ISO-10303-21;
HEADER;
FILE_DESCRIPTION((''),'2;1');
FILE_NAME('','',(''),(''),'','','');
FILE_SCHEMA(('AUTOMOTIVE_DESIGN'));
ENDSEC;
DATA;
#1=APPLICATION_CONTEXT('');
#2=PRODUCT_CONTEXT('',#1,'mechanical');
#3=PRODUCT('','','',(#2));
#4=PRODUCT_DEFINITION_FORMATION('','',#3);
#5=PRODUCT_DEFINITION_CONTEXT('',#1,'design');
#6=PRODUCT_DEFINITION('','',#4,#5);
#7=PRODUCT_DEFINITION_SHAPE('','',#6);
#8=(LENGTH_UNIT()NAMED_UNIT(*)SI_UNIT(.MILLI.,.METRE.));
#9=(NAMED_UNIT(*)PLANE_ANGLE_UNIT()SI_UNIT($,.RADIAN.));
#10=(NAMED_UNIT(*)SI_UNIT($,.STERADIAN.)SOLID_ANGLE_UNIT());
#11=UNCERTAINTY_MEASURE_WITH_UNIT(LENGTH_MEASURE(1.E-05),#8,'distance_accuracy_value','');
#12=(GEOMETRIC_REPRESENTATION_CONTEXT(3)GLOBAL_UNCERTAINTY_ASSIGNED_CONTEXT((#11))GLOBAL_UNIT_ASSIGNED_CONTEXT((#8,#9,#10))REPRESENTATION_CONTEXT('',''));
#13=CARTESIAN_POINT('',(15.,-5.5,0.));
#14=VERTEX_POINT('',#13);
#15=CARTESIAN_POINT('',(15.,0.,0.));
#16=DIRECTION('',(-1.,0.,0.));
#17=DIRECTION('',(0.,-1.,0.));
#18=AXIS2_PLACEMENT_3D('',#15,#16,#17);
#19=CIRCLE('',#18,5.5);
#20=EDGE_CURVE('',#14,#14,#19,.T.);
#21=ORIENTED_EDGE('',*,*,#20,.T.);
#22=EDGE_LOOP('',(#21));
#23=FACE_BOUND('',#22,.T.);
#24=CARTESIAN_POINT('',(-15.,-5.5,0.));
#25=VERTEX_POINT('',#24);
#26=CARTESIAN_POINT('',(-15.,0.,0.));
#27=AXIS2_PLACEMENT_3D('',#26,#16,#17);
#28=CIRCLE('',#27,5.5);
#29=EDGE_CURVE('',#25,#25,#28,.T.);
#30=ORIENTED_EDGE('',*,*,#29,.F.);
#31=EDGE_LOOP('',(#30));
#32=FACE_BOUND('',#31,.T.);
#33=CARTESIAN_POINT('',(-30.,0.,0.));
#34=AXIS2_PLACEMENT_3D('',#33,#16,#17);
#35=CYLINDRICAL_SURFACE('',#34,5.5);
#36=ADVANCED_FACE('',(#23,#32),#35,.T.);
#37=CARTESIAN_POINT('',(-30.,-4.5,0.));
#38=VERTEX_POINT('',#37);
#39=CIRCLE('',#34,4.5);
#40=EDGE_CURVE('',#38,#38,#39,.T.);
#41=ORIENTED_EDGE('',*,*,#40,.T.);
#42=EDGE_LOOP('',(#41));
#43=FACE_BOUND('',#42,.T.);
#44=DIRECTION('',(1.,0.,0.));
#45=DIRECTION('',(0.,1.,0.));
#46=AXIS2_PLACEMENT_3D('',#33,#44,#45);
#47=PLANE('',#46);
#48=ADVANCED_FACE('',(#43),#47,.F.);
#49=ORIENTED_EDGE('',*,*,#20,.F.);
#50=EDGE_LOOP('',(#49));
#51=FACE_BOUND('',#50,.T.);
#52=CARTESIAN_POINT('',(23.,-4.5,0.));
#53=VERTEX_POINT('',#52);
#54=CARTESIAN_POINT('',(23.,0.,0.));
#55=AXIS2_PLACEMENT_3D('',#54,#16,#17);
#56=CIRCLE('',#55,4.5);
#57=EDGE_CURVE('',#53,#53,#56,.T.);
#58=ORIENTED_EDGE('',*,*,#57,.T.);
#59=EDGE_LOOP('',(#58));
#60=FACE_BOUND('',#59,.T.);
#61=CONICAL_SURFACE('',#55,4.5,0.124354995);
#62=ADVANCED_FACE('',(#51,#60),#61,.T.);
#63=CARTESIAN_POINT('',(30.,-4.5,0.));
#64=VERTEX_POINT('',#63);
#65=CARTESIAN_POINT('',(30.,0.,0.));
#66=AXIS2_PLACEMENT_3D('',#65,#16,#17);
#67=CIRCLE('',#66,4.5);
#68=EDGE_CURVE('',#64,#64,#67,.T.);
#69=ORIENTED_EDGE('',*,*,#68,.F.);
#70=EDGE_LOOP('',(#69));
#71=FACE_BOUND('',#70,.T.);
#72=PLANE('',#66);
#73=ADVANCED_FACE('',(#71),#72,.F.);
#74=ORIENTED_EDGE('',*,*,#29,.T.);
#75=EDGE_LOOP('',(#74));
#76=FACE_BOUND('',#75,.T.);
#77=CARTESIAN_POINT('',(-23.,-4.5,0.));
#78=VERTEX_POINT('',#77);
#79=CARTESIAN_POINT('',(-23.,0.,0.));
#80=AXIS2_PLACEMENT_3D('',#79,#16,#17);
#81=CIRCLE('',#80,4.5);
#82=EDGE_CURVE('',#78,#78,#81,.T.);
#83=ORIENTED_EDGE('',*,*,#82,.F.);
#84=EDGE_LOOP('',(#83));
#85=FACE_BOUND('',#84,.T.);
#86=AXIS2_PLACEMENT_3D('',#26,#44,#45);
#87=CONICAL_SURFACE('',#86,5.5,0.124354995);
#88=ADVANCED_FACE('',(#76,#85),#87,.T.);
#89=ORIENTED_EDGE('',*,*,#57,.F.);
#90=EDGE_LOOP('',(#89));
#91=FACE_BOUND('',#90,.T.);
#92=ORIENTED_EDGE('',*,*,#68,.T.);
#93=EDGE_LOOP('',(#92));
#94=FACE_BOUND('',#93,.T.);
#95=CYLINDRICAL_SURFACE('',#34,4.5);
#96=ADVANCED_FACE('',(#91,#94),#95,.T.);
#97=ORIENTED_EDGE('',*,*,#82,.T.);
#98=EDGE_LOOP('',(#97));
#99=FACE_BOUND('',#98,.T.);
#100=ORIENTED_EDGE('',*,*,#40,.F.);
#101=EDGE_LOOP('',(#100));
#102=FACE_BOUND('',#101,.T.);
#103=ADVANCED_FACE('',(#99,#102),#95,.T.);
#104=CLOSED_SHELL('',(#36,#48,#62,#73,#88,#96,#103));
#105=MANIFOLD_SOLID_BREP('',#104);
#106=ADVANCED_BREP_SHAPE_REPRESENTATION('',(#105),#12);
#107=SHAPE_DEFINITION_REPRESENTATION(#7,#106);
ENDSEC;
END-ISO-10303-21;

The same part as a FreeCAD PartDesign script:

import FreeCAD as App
import Part
import Sketcher

V = App.Vector

doc = App.newDocument("Part")
body = doc.addObject("PartDesign::Body", "Body")

# Sketch on XY plane
sketch1 = body.newObject("Sketcher::SketchObject", "Sketch")
sketch1.AttachmentSupport = (doc.getObject("XY_Plane"), [""])
sketch1.MapMode = "FlatFace"
sketch1.addGeometry(Part.LineSegment(V(-30, 0, 0), V(30, 0, 0)), False)
sketch1.addGeometry(Part.LineSegment(V(30, 0, 0), V(30, 4.5, 0)), False)
sketch1.addGeometry(Part.LineSegment(V(30, 4.5, 0), V(23, 4.5, 0)), False)
sketch1.addGeometry(Part.LineSegment(V(23, 4.5, 0), V(15, 5.5, 0)), False)
sketch1.addGeometry(Part.LineSegment(V(15, 5.5, 0), V(-15, 5.5, 0)), False)
sketch1.addGeometry(Part.LineSegment(V(-15, 5.5, 0), V(-23, 4.5, 0)), False)
sketch1.addGeometry(Part.LineSegment(V(-23, 4.5, 0), V(-30, 4.5, 0)), False)
sketch1.addGeometry(Part.LineSegment(V(-30, 4.5, 0), V(-30, 0, 0)), False)
sketch1.addConstraint(Sketcher.Constraint("Coincident", 0, 2, 1, 1))
sketch1.addConstraint(Sketcher.Constraint("Coincident", 1, 2, 2, 1))
sketch1.addConstraint(Sketcher.Constraint("Coincident", 2, 2, 3, 1))
sketch1.addConstraint(Sketcher.Constraint("Coincident", 3, 2, 4, 1))
sketch1.addConstraint(Sketcher.Constraint("Coincident", 4, 2, 5, 1))
sketch1.addConstraint(Sketcher.Constraint("Coincident", 5, 2, 6, 1))
sketch1.addConstraint(Sketcher.Constraint("Coincident", 6, 2, 7, 1))
sketch1.addConstraint(Sketcher.Constraint("Coincident", 7, 2, 0, 1))
sketch1.addConstraint(Sketcher.Constraint("Horizontal", 0))
sketch1.addConstraint(Sketcher.Constraint("Vertical", 1))
sketch1.addConstraint(Sketcher.Constraint("Horizontal", 2))
sketch1.addConstraint(Sketcher.Constraint("Horizontal", 4))
sketch1.addConstraint(Sketcher.Constraint("Horizontal", 6))
sketch1.addConstraint(Sketcher.Constraint("Vertical", 7))
sketch1.addConstraint(Sketcher.Constraint("Symmetric", 0, 2, 7, 2, -1, 1))
sketch1.addConstraint(Sketcher.Constraint("Symmetric", 2, 2, 5, 2, -2))
sketch1.addConstraint(Sketcher.Constraint("Equal", 3, 5))
sketch1.addConstraint(Sketcher.Constraint("DistanceX", 0, 1, 0, 2, 60.0))
sketch1.addConstraint(Sketcher.Constraint("DistanceX", 2, 2, 2, 1, 7.0))
sketch1.addConstraint(Sketcher.Constraint("DistanceX", 4, 2, 4, 1, 30.0))
sketch1.addConstraint(Sketcher.Constraint("DistanceY", 1, 1, 1, 2, 4.5))
sketch1.addConstraint(Sketcher.Constraint("DistanceY", 2, 2, 3, 2, 1.0))
revolution = body.newObject("PartDesign::Revolution", "Revolution")
revolution.Profile = sketch1
revolution.ReferenceAxis = (sketch1, ["H_Axis"])
revolution.Angle = 360

doc.recompute()
